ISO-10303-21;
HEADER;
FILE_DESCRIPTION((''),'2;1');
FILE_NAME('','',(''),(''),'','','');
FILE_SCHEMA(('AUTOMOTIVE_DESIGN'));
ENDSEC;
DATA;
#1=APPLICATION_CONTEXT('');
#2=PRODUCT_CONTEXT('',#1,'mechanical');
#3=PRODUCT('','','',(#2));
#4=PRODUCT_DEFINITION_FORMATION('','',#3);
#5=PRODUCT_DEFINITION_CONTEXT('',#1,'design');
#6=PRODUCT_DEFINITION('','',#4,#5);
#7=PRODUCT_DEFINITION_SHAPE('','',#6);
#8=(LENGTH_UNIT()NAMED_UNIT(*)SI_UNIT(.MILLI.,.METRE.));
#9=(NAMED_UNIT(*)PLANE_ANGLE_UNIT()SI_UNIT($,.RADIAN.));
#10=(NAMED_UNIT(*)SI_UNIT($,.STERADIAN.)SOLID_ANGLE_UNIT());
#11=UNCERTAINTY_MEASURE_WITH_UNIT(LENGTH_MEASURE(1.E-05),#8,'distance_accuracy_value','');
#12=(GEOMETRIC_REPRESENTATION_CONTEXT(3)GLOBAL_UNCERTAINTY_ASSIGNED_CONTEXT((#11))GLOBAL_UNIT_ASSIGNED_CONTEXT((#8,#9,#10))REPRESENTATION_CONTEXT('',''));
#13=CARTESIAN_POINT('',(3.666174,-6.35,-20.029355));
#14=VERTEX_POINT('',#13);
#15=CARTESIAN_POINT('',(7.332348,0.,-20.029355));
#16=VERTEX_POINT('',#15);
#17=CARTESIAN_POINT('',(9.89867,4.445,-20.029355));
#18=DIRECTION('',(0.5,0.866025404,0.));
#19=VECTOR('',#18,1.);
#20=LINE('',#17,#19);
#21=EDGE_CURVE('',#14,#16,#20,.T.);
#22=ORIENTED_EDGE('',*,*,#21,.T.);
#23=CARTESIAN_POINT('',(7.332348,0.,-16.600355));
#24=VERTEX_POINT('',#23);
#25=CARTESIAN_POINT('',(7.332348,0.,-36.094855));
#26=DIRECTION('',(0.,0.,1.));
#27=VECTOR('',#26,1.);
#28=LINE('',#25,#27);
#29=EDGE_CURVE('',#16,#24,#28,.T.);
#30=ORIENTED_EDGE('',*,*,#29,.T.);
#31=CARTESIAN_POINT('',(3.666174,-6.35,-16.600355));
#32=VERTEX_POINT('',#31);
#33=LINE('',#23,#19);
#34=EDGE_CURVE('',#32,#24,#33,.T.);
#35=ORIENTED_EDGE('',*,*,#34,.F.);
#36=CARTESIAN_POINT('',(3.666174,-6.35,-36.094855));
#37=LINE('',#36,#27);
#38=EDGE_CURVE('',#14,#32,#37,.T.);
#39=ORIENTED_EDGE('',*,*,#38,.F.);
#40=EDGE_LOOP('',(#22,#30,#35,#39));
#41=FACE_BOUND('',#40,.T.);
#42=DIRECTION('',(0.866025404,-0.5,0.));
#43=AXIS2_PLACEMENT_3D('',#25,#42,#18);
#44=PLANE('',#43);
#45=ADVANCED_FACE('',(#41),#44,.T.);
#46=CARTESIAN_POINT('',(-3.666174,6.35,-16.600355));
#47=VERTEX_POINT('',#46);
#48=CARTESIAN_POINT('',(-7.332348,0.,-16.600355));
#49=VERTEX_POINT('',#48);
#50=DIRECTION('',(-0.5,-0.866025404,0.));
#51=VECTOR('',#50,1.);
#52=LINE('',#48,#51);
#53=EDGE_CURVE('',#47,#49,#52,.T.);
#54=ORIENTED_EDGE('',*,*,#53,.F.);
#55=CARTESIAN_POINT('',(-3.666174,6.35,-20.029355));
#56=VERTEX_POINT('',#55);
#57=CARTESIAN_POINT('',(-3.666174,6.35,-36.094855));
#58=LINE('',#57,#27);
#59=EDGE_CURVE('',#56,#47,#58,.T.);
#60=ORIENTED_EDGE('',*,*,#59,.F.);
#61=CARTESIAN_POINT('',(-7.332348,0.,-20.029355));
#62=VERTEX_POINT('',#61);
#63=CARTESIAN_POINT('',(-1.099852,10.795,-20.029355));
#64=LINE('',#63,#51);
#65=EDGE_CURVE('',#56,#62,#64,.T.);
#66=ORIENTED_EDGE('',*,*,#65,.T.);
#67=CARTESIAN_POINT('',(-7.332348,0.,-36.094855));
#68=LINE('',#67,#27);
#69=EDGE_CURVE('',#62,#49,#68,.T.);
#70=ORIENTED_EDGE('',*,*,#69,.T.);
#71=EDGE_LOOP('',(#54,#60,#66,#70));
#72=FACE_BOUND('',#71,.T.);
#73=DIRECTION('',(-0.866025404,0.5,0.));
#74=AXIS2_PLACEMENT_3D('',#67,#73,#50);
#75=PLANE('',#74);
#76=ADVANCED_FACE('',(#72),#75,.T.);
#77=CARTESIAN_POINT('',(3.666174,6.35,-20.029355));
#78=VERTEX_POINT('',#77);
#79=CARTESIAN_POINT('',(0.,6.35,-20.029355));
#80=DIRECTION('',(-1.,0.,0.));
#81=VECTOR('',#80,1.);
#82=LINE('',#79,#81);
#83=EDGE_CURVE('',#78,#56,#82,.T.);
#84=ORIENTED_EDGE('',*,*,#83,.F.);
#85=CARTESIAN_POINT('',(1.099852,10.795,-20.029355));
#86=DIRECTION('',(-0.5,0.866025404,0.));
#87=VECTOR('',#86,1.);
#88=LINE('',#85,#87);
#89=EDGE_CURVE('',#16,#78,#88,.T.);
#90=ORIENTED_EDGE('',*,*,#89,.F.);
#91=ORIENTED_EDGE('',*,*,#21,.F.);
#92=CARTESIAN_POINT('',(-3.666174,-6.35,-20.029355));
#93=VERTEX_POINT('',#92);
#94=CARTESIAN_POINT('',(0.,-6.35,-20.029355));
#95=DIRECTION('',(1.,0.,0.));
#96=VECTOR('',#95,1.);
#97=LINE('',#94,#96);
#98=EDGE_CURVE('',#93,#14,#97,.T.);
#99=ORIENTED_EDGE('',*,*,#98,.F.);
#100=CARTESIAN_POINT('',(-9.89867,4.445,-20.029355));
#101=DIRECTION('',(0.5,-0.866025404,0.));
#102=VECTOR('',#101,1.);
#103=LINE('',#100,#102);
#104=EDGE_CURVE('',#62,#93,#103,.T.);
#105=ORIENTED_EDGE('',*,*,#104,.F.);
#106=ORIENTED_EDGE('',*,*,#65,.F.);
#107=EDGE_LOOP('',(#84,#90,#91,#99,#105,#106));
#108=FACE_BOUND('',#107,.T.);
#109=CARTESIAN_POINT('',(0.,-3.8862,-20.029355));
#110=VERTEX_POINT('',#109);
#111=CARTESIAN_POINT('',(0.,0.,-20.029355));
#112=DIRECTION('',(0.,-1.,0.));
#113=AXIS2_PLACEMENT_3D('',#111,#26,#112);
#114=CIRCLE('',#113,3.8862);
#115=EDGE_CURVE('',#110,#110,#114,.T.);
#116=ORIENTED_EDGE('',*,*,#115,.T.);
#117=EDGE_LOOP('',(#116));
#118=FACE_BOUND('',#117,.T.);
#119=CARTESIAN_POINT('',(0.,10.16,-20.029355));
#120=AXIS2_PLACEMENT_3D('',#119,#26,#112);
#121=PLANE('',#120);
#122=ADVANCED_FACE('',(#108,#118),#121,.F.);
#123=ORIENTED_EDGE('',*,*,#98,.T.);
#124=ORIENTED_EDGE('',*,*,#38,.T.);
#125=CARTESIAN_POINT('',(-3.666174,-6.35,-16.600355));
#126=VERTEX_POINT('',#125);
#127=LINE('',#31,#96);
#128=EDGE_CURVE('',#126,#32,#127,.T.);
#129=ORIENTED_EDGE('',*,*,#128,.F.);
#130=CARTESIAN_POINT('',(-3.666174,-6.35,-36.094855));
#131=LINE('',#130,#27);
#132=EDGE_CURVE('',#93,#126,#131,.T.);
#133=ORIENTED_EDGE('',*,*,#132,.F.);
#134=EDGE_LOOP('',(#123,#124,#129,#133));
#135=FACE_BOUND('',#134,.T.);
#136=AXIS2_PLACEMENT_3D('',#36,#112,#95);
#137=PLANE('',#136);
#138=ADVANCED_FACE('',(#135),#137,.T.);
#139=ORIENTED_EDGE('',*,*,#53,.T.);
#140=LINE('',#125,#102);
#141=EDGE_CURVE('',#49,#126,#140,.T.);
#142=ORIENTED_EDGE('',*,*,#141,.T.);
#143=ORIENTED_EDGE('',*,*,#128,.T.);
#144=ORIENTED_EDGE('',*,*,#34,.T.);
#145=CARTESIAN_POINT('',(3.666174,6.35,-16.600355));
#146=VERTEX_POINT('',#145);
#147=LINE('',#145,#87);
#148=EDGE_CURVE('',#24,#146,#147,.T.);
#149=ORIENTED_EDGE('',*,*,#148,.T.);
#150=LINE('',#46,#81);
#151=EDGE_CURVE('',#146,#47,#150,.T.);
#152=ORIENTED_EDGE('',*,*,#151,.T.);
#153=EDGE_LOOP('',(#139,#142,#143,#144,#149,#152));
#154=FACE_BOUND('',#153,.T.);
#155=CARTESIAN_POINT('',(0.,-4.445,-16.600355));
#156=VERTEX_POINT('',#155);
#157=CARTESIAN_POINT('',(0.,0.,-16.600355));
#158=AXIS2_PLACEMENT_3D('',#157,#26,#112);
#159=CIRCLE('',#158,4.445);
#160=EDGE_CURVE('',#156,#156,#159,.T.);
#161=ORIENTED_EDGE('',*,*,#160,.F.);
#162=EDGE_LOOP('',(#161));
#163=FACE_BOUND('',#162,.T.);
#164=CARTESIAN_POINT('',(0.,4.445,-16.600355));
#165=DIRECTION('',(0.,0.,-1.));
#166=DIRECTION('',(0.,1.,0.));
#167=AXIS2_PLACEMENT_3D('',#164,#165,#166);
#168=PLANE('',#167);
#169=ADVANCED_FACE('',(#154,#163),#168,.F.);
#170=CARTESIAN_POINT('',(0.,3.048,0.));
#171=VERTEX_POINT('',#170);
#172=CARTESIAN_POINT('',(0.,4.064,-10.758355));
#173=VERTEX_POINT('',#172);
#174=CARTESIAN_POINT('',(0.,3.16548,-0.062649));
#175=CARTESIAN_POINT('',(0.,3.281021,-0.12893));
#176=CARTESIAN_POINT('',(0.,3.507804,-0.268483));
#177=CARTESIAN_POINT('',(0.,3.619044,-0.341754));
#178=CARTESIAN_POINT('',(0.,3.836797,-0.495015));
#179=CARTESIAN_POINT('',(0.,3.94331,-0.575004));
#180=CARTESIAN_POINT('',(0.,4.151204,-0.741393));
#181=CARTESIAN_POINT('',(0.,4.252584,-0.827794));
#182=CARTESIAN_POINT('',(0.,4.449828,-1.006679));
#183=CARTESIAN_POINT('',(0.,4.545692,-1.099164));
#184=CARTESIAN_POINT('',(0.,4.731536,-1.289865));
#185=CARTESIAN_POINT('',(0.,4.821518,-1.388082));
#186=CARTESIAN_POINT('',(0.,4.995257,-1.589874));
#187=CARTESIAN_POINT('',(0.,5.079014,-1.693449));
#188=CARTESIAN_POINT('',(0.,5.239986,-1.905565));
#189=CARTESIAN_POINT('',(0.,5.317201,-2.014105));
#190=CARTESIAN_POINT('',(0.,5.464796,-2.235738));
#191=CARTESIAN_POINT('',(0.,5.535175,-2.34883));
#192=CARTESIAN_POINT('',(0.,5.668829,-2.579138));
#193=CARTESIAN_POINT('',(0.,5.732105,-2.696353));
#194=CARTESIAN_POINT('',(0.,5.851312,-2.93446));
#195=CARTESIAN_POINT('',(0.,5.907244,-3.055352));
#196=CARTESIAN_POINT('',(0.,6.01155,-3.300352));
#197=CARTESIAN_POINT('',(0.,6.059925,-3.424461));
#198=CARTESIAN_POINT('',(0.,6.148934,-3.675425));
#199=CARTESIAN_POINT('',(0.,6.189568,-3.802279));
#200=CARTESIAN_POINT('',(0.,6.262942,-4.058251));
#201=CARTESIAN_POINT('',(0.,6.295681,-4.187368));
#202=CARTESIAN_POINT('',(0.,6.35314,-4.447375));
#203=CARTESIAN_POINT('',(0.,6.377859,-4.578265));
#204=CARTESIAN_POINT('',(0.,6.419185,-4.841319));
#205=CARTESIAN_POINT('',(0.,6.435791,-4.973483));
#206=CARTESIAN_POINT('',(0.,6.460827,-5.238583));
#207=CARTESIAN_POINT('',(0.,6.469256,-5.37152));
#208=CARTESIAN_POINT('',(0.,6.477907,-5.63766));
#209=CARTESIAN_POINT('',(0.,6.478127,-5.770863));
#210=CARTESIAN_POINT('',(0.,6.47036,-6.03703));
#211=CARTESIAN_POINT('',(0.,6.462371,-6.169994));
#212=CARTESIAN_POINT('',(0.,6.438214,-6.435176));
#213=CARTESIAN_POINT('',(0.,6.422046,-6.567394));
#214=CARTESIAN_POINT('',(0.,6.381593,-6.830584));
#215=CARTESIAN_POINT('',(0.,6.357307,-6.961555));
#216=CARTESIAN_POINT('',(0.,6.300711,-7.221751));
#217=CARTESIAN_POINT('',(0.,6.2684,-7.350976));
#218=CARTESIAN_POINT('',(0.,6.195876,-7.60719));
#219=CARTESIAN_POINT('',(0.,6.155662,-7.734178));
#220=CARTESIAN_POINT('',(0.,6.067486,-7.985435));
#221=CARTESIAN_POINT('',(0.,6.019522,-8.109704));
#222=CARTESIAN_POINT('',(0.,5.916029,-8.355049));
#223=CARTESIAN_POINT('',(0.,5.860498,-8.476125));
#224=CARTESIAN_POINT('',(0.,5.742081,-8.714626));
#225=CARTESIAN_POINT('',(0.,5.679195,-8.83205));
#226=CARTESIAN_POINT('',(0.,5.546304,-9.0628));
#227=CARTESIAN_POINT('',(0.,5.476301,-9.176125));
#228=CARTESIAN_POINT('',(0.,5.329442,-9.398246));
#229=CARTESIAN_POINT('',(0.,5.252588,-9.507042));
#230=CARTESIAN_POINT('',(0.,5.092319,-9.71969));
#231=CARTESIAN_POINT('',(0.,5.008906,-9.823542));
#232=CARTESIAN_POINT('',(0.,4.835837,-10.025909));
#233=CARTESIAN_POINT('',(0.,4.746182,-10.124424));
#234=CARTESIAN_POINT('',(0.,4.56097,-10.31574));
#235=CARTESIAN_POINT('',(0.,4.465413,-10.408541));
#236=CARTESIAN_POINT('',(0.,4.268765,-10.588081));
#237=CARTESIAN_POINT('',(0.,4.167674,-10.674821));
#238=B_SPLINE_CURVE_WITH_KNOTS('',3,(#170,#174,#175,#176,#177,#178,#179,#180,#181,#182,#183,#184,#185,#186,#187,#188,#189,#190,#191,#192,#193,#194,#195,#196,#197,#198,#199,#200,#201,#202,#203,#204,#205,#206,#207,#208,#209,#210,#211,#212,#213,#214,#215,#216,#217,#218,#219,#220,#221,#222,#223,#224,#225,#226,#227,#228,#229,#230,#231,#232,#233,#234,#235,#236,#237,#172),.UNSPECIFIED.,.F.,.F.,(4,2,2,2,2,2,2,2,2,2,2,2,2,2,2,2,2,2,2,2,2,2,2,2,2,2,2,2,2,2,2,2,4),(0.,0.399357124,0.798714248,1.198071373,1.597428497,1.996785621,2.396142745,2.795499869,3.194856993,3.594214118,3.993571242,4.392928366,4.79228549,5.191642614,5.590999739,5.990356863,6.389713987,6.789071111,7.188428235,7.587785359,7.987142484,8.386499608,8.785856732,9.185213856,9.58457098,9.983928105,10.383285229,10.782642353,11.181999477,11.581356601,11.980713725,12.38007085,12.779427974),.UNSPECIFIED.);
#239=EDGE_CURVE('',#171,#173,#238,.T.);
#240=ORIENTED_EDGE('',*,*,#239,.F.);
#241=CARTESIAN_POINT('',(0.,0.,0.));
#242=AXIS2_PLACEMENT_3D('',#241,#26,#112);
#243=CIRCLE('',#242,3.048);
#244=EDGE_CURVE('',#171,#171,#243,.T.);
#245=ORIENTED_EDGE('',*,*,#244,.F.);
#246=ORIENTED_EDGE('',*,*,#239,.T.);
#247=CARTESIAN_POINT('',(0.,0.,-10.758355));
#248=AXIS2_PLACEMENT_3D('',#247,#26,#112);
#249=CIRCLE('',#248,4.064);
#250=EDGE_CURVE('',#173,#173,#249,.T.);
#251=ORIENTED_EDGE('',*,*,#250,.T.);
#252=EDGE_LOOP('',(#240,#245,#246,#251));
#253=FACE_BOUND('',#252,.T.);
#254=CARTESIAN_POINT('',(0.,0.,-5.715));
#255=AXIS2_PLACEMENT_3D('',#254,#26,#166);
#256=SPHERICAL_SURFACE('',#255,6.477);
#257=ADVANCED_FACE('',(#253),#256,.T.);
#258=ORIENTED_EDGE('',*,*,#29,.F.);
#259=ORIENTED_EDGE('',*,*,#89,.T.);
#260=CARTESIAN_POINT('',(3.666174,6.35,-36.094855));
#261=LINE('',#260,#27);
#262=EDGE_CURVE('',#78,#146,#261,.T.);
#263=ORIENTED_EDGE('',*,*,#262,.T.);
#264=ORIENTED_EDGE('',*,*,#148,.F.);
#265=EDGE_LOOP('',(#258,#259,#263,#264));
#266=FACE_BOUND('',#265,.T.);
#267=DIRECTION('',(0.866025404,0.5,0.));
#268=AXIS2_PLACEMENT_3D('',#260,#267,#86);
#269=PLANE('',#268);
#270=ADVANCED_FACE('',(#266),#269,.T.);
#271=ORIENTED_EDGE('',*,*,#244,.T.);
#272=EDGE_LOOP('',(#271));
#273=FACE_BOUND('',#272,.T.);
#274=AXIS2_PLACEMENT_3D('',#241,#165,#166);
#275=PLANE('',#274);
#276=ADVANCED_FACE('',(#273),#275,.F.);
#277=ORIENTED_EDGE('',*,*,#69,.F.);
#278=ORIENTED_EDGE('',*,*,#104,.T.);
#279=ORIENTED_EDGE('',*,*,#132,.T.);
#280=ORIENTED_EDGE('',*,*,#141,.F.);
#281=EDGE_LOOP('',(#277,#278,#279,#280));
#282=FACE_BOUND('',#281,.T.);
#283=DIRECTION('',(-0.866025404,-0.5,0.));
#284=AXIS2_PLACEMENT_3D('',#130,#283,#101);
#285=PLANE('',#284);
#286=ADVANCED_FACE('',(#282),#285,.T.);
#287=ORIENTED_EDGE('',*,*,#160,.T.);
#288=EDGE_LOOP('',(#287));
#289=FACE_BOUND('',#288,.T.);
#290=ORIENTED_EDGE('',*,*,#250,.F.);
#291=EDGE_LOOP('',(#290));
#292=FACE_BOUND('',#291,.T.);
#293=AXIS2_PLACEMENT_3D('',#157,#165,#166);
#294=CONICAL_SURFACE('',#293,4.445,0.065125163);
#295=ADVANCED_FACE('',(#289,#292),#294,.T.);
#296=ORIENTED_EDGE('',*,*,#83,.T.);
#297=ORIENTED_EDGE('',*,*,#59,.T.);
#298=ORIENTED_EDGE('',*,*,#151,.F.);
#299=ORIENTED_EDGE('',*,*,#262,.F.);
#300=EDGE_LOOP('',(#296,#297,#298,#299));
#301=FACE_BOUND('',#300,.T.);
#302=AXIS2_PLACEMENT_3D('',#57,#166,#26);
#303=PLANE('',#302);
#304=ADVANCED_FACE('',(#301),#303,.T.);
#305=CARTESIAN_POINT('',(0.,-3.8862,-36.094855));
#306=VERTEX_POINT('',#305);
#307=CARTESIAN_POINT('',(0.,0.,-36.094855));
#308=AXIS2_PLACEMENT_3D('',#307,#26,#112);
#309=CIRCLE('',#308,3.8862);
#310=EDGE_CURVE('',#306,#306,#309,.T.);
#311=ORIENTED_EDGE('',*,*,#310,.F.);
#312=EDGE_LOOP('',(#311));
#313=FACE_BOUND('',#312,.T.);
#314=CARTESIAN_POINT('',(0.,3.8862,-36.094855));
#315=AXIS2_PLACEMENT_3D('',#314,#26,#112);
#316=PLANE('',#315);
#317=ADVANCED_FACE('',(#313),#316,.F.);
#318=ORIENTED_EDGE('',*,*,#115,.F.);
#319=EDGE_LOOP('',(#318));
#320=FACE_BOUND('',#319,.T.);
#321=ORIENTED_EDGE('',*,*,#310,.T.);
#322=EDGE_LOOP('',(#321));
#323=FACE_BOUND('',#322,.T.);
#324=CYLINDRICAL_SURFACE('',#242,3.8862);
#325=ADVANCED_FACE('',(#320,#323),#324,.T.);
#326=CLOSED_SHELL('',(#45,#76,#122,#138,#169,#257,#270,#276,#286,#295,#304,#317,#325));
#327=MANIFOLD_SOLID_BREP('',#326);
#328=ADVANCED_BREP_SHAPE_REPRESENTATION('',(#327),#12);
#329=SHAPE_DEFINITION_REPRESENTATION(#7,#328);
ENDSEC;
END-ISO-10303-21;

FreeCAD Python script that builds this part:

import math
import FreeCAD as App
import Part
import Sketcher
from FreeCAD import Vector
Q = App.Units.Quantity


def add_polygon(sketch, points):
    """Adds a closed chain of lines whose ends are joined by coincident constraints."""
    first, n = sketch.GeometryCount, len(points)
    for a, b in zip(points, points[1:] + points[:1]):
        sketch.addGeometry(Part.LineSegment(App.Vector(*a, 0), App.Vector(*b, 0)), False)
    for i in range(n):
        sketch.addConstraint(Sketcher.Constraint("Coincident", first + i, 2, first + (i + 1) % n, 1))

doc = App.newDocument("Part")
body = doc.addObject("PartDesign::Body", "Body")

# Sketch on YZ plane
sketch1 = doc.addObject("Sketcher::SketchObject", "Sketch")
body.addObject(sketch1)
sketch1.AttachmentSupport = (doc.YZ_Plane, [""])
sketch1.MapMode = "FlatFace"
sketch1.addGeometry([
    Part.LineSegment(Vector(0, 0, 0), Vector(0, -36.094855, 0)),  # 0
    Part.LineSegment(Vector(0, -36.094855, 0), Vector(3.8862, -36.094855, 0)),  # 1
    Part.LineSegment(Vector(3.8862, -36.094855, 0), Vector(3.8862, -20.029355, 0)),  # 2
    Part.LineSegment(Vector(3.8862, -20.029355, 0), Vector(10.16, -20.029355, 0)),  # 3
    Part.LineSegment(Vector(10.16, -20.029355, 0), Vector(10.16, -16.600355, 0)),  # 4
    Part.LineSegment(Vector(10.16, -16.600355, 0), Vector(4.445, -16.600355, 0)),  # 5
    Part.LineSegment(Vector(4.445, -16.600355, 0), Vector(4.064, -10.758355, 0)),  # 6
    Part.ArcOfCircle(Part.Circle(Vector(0, -5.715, 0), Vector(0, 0, 1), 6.477), math.radians(-51.13769), math.radians(61.927513)),  # 7
    Part.LineSegment(Vector(3.048, 0, 0), Vector(0, 0, 0)),  # 8
], False)
sketch1.addConstraint([
    Sketcher.Constraint("Coincident", 0, 2, 1, 1),
    Sketcher.Constraint("Coincident", 1, 2, 2, 1),
    Sketcher.Constraint("Coincident", 2, 2, 3, 1),
    Sketcher.Constraint("Coincident", 3, 2, 4, 1),
    Sketcher.Constraint("Coincident", 4, 2, 5, 1),
    Sketcher.Constraint("Coincident", 5, 2, 6, 1),
    Sketcher.Constraint("Coincident", 6, 2, 7, 1),
    Sketcher.Constraint("Coincident", 7, 2, 8, 1),
    Sketcher.Constraint("Coincident", 8, 2, 0, 1),
    Sketcher.Constraint("Vertical", 0),
    Sketcher.Constraint("Horizontal", 1),
    Sketcher.Constraint("Vertical", 2),
    Sketcher.Constraint("Horizontal", 3),
    Sketcher.Constraint("Vertical", 4),
    Sketcher.Constraint("Horizontal", 5),
    Sketcher.Constraint("Horizontal", 8),
    Sketcher.Constraint("Coincident", 8, 2, -1, 1),
    Sketcher.Constraint("PointOnObject", 7, 3, -2),
    Sketcher.Constraint("Radius", 7, Q("0.255 in")),
    Sketcher.Constraint("DistanceX", 8, 2, 8, 1, Q("0.12 in")),
    Sketcher.Constraint("DistanceX", -1, 1, 3, 2, Q("0.4 in")),
    Sketcher.Constraint("DistanceX", 1, 1, 1, 2, Q("0.153 in")),
    Sketcher.Constraint("DistanceX", 5, 2, 5, 1, Q("0.225 in")),
    Sketcher.Constraint("DistanceY", 4, 1, 4, 2, Q("0.135 in")),
    Sketcher.Constraint("DistanceX", -1, 1, 6, 2, Q("0.16 in")),
    Sketcher.Constraint("DistanceY", 5, 2, 6, 2, Q("0.23 in")),
    Sketcher.Constraint("DistanceY", 2, 1, 2, 2, Q("0.6325 in")),
])
revolution = doc.addObject("PartDesign::Revolution", "Revolution")
body.addObject(revolution)
revolution.Profile = sketch1
revolution.ReferenceAxis = (sketch1, ["V_Axis"])
revolution.Angle = 360

# Sketch on XY plane
sketch2 = doc.addObject("Sketcher::SketchObject", "Sketch001")
body.addObject(sketch2)
sketch2.AttachmentSupport = (doc.XY_Plane, [""])
sketch2.MapMode = "FlatFace"
sketch2.AttachmentOffset = App.Placement(Vector(0, 0, -16.600355), App.Rotation())
sketch2.addGeometry(Part.Circle(Vector(0, 0, 0), Vector(0, 0, 1), 13.92588), False)  # 0
add_polygon(sketch2, [(-7.332348, 0), (-3.666174, 6.35), (3.666174, 6.35), (7.332348, 0), (3.666174, -6.35), (-3.666174, -6.35)])  # lines 1-6
sketch2.addConstraint([
    Sketcher.Constraint("Horizontal", 2),
    Sketcher.Constraint("Horizontal", 5),
    Sketcher.Constraint("Coincident", 0, 3, -1, 1),
    Sketcher.Constraint("Symmetric", 1, 2, 4, 2, -1, 1),
    Sketcher.Constraint("Symmetric", 3, 2, 6, 2, -1, 1),
    Sketcher.Constraint("PointOnObject", 3, 2, -1),
    Sketcher.Constraint("Parallel", 3, 6),
    Sketcher.Constraint("Vertical", 2, 2, 4, 2),
    Sketcher.Constraint("Angle", 1, Q("60 deg")),
    Sketcher.Constraint("DistanceY", 4, 2, 2, 2, Q("0.5 in")),
    Sketcher.Constraint("Diameter", 0, 27.851759),
    Sketcher.Constraint("DistanceX", 2, 1, 2, 2, 7.332348),
])
pocket1 = doc.addObject("PartDesign::Pocket", "Pocket")
body.addObject(pocket1)
pocket1.Profile = sketch2
pocket1.Type = "ThroughAll"

doc.recompute()
